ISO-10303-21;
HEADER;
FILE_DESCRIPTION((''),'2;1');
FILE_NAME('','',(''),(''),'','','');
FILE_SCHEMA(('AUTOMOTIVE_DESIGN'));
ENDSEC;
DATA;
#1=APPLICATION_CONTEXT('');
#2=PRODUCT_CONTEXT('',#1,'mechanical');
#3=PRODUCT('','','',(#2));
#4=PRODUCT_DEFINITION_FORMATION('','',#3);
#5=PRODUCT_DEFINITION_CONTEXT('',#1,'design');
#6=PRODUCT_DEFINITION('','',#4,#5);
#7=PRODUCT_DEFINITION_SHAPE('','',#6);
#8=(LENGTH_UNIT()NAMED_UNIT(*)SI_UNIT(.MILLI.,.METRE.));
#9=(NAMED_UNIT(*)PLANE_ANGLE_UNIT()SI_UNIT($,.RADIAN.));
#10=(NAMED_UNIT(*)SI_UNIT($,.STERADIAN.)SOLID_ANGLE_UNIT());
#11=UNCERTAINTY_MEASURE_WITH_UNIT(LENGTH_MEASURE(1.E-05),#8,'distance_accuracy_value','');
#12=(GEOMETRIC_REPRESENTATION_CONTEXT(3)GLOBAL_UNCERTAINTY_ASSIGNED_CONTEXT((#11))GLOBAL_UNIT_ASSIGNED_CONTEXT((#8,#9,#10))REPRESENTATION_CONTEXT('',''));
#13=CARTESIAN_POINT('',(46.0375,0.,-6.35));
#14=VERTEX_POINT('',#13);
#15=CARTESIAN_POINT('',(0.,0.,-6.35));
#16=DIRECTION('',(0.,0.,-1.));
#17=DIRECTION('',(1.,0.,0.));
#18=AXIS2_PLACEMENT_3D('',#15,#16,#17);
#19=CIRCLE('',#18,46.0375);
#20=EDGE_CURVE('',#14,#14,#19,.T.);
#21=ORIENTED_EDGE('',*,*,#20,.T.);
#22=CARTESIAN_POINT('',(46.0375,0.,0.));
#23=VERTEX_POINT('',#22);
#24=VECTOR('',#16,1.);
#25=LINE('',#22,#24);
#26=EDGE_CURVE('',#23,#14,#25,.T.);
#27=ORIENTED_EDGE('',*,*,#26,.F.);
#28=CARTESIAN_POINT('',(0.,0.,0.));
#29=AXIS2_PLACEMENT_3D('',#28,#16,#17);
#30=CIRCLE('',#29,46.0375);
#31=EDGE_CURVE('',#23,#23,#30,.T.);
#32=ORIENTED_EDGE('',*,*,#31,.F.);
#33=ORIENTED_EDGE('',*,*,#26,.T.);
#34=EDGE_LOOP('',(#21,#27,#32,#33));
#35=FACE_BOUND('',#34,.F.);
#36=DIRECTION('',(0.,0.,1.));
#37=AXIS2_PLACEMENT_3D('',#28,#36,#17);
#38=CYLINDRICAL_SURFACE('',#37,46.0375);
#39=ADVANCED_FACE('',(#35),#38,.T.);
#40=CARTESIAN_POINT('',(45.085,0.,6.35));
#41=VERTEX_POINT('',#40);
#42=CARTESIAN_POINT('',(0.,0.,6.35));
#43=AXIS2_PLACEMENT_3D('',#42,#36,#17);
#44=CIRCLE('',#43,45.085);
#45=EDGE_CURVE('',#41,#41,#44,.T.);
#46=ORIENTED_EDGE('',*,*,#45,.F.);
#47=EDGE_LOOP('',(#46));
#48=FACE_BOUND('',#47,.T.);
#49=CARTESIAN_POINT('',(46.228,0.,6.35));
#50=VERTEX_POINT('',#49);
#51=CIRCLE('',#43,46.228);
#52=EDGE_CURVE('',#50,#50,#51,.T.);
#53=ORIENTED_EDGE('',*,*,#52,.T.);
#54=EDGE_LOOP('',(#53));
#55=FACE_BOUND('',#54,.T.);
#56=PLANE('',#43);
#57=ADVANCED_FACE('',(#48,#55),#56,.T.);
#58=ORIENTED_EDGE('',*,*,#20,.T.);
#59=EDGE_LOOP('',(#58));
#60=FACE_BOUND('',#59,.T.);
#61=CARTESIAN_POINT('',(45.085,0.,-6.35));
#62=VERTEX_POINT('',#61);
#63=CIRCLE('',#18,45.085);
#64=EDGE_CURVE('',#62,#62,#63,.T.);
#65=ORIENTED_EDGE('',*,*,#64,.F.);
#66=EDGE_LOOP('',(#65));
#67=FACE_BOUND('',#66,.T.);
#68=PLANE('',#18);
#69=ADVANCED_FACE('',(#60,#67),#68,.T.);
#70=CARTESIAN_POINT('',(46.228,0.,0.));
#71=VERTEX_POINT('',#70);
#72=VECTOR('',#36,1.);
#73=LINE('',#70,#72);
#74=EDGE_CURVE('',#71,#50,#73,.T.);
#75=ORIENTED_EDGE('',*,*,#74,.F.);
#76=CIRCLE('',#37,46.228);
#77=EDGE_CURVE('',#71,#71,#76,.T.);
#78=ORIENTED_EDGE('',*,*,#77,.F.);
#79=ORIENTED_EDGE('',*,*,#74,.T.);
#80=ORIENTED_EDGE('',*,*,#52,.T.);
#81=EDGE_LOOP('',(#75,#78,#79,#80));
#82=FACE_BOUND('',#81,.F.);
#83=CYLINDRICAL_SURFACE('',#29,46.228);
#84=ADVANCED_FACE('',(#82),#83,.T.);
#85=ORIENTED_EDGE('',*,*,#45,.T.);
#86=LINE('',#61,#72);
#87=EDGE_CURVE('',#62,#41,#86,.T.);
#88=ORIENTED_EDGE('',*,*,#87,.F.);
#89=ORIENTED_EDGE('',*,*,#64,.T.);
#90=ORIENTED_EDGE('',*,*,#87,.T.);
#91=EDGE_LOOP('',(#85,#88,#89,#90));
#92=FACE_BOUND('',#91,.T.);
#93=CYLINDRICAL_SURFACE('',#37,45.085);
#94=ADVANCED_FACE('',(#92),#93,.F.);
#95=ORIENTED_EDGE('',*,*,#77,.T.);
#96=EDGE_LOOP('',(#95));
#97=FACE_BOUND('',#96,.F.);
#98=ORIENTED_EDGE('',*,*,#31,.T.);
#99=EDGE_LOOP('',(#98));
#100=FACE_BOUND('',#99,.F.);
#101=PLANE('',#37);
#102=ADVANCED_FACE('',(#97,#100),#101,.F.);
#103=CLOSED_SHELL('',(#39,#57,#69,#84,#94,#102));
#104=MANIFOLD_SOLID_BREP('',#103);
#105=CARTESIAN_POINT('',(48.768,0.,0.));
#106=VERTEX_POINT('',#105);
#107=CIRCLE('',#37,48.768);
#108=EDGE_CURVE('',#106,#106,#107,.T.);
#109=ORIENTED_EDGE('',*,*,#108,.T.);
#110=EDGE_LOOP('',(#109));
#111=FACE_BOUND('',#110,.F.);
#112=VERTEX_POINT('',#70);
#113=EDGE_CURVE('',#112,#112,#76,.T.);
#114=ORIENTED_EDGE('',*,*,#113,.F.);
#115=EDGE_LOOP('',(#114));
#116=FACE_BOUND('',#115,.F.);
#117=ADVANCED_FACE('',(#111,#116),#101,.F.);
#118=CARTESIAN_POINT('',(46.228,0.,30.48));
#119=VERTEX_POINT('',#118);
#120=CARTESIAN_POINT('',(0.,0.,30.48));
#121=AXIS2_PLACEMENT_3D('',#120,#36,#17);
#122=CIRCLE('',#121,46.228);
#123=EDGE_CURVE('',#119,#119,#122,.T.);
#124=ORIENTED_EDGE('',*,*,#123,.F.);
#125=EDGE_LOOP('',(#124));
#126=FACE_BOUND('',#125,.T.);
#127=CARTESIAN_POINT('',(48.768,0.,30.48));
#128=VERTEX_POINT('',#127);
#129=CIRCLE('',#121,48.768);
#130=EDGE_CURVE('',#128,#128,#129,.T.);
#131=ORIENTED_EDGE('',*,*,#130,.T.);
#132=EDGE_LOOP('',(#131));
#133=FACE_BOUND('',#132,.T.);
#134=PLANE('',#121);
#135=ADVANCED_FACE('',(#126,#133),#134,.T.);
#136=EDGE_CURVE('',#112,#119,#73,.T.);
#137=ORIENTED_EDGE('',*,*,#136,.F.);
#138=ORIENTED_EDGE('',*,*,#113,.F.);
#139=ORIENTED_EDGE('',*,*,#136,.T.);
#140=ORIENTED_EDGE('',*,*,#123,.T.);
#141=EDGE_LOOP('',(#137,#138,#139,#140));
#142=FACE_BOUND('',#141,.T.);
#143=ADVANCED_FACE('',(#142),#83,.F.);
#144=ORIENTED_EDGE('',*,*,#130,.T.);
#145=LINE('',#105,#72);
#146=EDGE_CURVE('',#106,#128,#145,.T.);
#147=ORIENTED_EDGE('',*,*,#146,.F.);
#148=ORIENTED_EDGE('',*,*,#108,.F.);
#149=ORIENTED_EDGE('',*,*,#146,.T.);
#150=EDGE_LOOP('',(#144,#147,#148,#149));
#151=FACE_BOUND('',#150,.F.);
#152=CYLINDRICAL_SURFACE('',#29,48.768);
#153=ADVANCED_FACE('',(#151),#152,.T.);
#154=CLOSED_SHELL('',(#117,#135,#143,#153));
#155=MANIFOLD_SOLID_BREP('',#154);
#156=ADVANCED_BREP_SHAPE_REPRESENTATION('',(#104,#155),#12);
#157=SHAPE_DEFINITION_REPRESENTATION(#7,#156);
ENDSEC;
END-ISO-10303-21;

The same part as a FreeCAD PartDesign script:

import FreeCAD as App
import Part
import Sketcher
Q = App.Units.Quantity

doc = App.newDocument("Part")
body = doc.addObject("PartDesign::Body", "Body")

sketch1 = doc.addObject("Sketcher::SketchObject", "Sketch")
body.addObject(sketch1)
sketch1.AttachmentSupport = (doc.XY_Plane, [""])
sketch1.MapMode = "FlatFace"
sketch1.addGeometry(Part.Circle(App.Vector(0, 0, 0), App.Vector(0, 0, 1), 49), False)
sketch1.addGeometry(Part.Circle(App.Vector(0, 0, 0), App.Vector(0, 0, 1), 46), False)
sketch1.addConstraint(Sketcher.Constraint("Coincident", 0, 3, -1, 1))
sketch1.addConstraint(Sketcher.Constraint("Coincident", 1, 3, -1, 1))
sketch1.addConstraint(Sketcher.Constraint("Diameter", 0, Q("3.84 in")))
sketch1.addConstraint(Sketcher.Constraint("Diameter", 1, Q("3.64 in")))
pad1 = doc.addObject("PartDesign::Pad", "Pad")
body.addObject(pad1)
pad1.Profile = sketch1
pad1.Length = Q("1.2 in")
body2 = doc.addObject("PartDesign::Body", "Body001")

sketch2 = doc.addObject("Sketcher::SketchObject", "Sketch001")
body2.addObject(sketch2)
sketch2.AttachmentSupport = (doc.getObject("XY_Plane001"), [""])
sketch2.MapMode = "FlatFace"
sketch2.addGeometry(Part.Circle(App.Vector(0, 0, 0), App.Vector(0, 0, 1), 46), False)
sketch2.addGeometry(Part.Circle(App.Vector(0, 0, 0), App.Vector(0, 0, 1), 45), False)
sketch2.addConstraint(Sketcher.Constraint("Coincident", 0, 3, -1, 1))
sketch2.addConstraint(Sketcher.Constraint("Coincident", 1, 3, -1, 1))
sketch2.addConstraint(Sketcher.Constraint("Diameter", 0, Q("3.64 in")))
sketch2.addConstraint(Sketcher.Constraint("Diameter", 1, Q("3.55 in")))
pad2 = doc.addObject("PartDesign::Pad", "Pad001")
body2.addObject(pad2)
pad2.Profile = sketch2
pad2.Length = Q("0.25 in")

sketch3 = doc.addObject("Sketcher::SketchObject", "Sketch002")
body2.addObject(sketch3)
sketch3.AttachmentSupport = (doc.getObject("XY_Plane001"), [""])
sketch3.MapMode = "FlatFace"
sketch3.addGeometry(Part.Circle(App.Vector(0, 0, 0), App.Vector(0, 0, 1), 46), False)
sketch3.addGeometry(Part.Circle(App.Vector(0, 0, 0), App.Vector(0, 0, 1), 45), False)
sketch3.addConstraint(Sketcher.Constraint("Coincident", 0, 3, -1, 1))
sketch3.addConstraint(Sketcher.Constraint("Coincident", 1, 3, -1, 1))
sketch3.addConstraint(Sketcher.Constraint("Diameter", 1, Q("3.55 in")))
sketch3.addConstraint(Sketcher.Constraint("Diameter", 0, Q("3.625 in")))
pad3 = doc.addObject("PartDesign::Pad", "Pad002")
body2.addObject(pad3)
pad3.Profile = sketch3
pad3.Length = Q("0.25 in")
pad3.Reversed = True

doc.recompute()
